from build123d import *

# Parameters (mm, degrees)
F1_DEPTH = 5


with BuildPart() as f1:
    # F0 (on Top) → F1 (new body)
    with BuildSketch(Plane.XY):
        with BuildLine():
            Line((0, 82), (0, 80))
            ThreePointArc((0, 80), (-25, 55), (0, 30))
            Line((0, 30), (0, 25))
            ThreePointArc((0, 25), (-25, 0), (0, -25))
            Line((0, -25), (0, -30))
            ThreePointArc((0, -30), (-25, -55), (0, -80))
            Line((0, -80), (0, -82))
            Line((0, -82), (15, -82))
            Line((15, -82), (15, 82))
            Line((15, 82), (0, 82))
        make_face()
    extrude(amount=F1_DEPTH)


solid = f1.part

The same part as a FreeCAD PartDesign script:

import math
import FreeCAD as App
import Part
import Sketcher

V = App.Vector

doc = App.newDocument("Part")
body = doc.addObject("PartDesign::Body", "Body")

sketch1 = doc.addObject("Sketcher::SketchObject", "Sketch")
body.addObject(sketch1)
sketch1.AttachmentSupport = (doc.XY_Plane, [""])
sketch1.MapMode = "FlatFace"
sketch1.addGeometry([
    Part.LineSegment(V(0, 82, 0), V(0, 80, 0)),
    Part.ArcOfCircle(Part.Circle(V(0, 55, 0), V(0, 0, 1), 25), math.radians(90), math.radians(270)),
    Part.LineSegment(V(0, 30, 0), V(0, 25, 0)),
    Part.ArcOfCircle(Part.Circle(V(0, 0, 0), V(0, 0, 1), 25), math.radians(90), math.radians(270)),
    Part.LineSegment(V(0, -25, 0), V(0, -30, 0)),
    Part.ArcOfCircle(Part.Circle(V(0, -55, 0), V(0, 0, 1), 25), math.radians(90), math.radians(270)),
    Part.LineSegment(V(0, -80, 0), V(0, -82, 0)),
    Part.LineSegment(V(0, -82, 0), V(15, -82, 0)),
    Part.LineSegment(V(15, -82, 0), V(15, 82, 0)),
    Part.LineSegment(V(15, 82, 0), V(0, 82, 0)),
], False)
sketch1.addConstraint([
    Sketcher.Constraint("Coincident", 0, 2, 1, 1),
    Sketcher.Constraint("Coincident", 1, 2, 2, 1),
    Sketcher.Constraint("Coincident", 2, 2, 3, 1),
    Sketcher.Constraint("Coincident", 3, 2, 4, 1),
    Sketcher.Constraint("Coincident", 4, 2, 5, 1),
    Sketcher.Constraint("Coincident", 5, 2, 6, 1),
    Sketcher.Constraint("Coincident", 6, 2, 7, 1),
    Sketcher.Constraint("Coincident", 7, 2, 8, 1),
    Sketcher.Constraint("Coincident", 8, 2, 9, 1),
    Sketcher.Constraint("Coincident", 9, 2, 0, 1),
    Sketcher.Constraint("Vertical", 0),
    Sketcher.Constraint("Vertical", 2),
    Sketcher.Constraint("Vertical", 4),
    Sketcher.Constraint("Vertical", 6),
    Sketcher.Constraint("Horizontal", 7),
    Sketcher.Constraint("Vertical", 8),
    Sketcher.Constraint("Horizontal", 9),
    Sketcher.Constraint("Coincident", 3, 3, -1, 1),
    Sketcher.Constraint("Equal", 1, 3),
    Sketcher.Constraint("Equal", 3, 5),
    Sketcher.Constraint("Symmetric", 1, 3, 5, 3, -1, 1),
    Sketcher.Constraint("Symmetric", 6, 2, 9, 2, -1, 1),
    Sketcher.Constraint("PointOnObject", 1, 3, -2),
    Sketcher.Constraint("PointOnObject", 0, 2, -2),
    Sketcher.Constraint("PointOnObject", 1, 2, -2),
    Sketcher.Constraint("PointOnObject", 3, 2, -2),
    Sketcher.Constraint("Radius", 1, 25.0),
    Sketcher.Constraint("DistanceX", 7, 1, 7, 2, 15.0),
    Sketcher.Constraint("DistanceY", 0, 2, 0, 1, 2.0),
    Sketcher.Constraint("DistanceY", 2, 2, 2, 1, 5.0),
])
pad1 = doc.addObject("PartDesign::Pad", "Pad")
body.addObject(pad1)
pad1.Profile = sketch1
pad1.Length = 5

doc.recompute()
